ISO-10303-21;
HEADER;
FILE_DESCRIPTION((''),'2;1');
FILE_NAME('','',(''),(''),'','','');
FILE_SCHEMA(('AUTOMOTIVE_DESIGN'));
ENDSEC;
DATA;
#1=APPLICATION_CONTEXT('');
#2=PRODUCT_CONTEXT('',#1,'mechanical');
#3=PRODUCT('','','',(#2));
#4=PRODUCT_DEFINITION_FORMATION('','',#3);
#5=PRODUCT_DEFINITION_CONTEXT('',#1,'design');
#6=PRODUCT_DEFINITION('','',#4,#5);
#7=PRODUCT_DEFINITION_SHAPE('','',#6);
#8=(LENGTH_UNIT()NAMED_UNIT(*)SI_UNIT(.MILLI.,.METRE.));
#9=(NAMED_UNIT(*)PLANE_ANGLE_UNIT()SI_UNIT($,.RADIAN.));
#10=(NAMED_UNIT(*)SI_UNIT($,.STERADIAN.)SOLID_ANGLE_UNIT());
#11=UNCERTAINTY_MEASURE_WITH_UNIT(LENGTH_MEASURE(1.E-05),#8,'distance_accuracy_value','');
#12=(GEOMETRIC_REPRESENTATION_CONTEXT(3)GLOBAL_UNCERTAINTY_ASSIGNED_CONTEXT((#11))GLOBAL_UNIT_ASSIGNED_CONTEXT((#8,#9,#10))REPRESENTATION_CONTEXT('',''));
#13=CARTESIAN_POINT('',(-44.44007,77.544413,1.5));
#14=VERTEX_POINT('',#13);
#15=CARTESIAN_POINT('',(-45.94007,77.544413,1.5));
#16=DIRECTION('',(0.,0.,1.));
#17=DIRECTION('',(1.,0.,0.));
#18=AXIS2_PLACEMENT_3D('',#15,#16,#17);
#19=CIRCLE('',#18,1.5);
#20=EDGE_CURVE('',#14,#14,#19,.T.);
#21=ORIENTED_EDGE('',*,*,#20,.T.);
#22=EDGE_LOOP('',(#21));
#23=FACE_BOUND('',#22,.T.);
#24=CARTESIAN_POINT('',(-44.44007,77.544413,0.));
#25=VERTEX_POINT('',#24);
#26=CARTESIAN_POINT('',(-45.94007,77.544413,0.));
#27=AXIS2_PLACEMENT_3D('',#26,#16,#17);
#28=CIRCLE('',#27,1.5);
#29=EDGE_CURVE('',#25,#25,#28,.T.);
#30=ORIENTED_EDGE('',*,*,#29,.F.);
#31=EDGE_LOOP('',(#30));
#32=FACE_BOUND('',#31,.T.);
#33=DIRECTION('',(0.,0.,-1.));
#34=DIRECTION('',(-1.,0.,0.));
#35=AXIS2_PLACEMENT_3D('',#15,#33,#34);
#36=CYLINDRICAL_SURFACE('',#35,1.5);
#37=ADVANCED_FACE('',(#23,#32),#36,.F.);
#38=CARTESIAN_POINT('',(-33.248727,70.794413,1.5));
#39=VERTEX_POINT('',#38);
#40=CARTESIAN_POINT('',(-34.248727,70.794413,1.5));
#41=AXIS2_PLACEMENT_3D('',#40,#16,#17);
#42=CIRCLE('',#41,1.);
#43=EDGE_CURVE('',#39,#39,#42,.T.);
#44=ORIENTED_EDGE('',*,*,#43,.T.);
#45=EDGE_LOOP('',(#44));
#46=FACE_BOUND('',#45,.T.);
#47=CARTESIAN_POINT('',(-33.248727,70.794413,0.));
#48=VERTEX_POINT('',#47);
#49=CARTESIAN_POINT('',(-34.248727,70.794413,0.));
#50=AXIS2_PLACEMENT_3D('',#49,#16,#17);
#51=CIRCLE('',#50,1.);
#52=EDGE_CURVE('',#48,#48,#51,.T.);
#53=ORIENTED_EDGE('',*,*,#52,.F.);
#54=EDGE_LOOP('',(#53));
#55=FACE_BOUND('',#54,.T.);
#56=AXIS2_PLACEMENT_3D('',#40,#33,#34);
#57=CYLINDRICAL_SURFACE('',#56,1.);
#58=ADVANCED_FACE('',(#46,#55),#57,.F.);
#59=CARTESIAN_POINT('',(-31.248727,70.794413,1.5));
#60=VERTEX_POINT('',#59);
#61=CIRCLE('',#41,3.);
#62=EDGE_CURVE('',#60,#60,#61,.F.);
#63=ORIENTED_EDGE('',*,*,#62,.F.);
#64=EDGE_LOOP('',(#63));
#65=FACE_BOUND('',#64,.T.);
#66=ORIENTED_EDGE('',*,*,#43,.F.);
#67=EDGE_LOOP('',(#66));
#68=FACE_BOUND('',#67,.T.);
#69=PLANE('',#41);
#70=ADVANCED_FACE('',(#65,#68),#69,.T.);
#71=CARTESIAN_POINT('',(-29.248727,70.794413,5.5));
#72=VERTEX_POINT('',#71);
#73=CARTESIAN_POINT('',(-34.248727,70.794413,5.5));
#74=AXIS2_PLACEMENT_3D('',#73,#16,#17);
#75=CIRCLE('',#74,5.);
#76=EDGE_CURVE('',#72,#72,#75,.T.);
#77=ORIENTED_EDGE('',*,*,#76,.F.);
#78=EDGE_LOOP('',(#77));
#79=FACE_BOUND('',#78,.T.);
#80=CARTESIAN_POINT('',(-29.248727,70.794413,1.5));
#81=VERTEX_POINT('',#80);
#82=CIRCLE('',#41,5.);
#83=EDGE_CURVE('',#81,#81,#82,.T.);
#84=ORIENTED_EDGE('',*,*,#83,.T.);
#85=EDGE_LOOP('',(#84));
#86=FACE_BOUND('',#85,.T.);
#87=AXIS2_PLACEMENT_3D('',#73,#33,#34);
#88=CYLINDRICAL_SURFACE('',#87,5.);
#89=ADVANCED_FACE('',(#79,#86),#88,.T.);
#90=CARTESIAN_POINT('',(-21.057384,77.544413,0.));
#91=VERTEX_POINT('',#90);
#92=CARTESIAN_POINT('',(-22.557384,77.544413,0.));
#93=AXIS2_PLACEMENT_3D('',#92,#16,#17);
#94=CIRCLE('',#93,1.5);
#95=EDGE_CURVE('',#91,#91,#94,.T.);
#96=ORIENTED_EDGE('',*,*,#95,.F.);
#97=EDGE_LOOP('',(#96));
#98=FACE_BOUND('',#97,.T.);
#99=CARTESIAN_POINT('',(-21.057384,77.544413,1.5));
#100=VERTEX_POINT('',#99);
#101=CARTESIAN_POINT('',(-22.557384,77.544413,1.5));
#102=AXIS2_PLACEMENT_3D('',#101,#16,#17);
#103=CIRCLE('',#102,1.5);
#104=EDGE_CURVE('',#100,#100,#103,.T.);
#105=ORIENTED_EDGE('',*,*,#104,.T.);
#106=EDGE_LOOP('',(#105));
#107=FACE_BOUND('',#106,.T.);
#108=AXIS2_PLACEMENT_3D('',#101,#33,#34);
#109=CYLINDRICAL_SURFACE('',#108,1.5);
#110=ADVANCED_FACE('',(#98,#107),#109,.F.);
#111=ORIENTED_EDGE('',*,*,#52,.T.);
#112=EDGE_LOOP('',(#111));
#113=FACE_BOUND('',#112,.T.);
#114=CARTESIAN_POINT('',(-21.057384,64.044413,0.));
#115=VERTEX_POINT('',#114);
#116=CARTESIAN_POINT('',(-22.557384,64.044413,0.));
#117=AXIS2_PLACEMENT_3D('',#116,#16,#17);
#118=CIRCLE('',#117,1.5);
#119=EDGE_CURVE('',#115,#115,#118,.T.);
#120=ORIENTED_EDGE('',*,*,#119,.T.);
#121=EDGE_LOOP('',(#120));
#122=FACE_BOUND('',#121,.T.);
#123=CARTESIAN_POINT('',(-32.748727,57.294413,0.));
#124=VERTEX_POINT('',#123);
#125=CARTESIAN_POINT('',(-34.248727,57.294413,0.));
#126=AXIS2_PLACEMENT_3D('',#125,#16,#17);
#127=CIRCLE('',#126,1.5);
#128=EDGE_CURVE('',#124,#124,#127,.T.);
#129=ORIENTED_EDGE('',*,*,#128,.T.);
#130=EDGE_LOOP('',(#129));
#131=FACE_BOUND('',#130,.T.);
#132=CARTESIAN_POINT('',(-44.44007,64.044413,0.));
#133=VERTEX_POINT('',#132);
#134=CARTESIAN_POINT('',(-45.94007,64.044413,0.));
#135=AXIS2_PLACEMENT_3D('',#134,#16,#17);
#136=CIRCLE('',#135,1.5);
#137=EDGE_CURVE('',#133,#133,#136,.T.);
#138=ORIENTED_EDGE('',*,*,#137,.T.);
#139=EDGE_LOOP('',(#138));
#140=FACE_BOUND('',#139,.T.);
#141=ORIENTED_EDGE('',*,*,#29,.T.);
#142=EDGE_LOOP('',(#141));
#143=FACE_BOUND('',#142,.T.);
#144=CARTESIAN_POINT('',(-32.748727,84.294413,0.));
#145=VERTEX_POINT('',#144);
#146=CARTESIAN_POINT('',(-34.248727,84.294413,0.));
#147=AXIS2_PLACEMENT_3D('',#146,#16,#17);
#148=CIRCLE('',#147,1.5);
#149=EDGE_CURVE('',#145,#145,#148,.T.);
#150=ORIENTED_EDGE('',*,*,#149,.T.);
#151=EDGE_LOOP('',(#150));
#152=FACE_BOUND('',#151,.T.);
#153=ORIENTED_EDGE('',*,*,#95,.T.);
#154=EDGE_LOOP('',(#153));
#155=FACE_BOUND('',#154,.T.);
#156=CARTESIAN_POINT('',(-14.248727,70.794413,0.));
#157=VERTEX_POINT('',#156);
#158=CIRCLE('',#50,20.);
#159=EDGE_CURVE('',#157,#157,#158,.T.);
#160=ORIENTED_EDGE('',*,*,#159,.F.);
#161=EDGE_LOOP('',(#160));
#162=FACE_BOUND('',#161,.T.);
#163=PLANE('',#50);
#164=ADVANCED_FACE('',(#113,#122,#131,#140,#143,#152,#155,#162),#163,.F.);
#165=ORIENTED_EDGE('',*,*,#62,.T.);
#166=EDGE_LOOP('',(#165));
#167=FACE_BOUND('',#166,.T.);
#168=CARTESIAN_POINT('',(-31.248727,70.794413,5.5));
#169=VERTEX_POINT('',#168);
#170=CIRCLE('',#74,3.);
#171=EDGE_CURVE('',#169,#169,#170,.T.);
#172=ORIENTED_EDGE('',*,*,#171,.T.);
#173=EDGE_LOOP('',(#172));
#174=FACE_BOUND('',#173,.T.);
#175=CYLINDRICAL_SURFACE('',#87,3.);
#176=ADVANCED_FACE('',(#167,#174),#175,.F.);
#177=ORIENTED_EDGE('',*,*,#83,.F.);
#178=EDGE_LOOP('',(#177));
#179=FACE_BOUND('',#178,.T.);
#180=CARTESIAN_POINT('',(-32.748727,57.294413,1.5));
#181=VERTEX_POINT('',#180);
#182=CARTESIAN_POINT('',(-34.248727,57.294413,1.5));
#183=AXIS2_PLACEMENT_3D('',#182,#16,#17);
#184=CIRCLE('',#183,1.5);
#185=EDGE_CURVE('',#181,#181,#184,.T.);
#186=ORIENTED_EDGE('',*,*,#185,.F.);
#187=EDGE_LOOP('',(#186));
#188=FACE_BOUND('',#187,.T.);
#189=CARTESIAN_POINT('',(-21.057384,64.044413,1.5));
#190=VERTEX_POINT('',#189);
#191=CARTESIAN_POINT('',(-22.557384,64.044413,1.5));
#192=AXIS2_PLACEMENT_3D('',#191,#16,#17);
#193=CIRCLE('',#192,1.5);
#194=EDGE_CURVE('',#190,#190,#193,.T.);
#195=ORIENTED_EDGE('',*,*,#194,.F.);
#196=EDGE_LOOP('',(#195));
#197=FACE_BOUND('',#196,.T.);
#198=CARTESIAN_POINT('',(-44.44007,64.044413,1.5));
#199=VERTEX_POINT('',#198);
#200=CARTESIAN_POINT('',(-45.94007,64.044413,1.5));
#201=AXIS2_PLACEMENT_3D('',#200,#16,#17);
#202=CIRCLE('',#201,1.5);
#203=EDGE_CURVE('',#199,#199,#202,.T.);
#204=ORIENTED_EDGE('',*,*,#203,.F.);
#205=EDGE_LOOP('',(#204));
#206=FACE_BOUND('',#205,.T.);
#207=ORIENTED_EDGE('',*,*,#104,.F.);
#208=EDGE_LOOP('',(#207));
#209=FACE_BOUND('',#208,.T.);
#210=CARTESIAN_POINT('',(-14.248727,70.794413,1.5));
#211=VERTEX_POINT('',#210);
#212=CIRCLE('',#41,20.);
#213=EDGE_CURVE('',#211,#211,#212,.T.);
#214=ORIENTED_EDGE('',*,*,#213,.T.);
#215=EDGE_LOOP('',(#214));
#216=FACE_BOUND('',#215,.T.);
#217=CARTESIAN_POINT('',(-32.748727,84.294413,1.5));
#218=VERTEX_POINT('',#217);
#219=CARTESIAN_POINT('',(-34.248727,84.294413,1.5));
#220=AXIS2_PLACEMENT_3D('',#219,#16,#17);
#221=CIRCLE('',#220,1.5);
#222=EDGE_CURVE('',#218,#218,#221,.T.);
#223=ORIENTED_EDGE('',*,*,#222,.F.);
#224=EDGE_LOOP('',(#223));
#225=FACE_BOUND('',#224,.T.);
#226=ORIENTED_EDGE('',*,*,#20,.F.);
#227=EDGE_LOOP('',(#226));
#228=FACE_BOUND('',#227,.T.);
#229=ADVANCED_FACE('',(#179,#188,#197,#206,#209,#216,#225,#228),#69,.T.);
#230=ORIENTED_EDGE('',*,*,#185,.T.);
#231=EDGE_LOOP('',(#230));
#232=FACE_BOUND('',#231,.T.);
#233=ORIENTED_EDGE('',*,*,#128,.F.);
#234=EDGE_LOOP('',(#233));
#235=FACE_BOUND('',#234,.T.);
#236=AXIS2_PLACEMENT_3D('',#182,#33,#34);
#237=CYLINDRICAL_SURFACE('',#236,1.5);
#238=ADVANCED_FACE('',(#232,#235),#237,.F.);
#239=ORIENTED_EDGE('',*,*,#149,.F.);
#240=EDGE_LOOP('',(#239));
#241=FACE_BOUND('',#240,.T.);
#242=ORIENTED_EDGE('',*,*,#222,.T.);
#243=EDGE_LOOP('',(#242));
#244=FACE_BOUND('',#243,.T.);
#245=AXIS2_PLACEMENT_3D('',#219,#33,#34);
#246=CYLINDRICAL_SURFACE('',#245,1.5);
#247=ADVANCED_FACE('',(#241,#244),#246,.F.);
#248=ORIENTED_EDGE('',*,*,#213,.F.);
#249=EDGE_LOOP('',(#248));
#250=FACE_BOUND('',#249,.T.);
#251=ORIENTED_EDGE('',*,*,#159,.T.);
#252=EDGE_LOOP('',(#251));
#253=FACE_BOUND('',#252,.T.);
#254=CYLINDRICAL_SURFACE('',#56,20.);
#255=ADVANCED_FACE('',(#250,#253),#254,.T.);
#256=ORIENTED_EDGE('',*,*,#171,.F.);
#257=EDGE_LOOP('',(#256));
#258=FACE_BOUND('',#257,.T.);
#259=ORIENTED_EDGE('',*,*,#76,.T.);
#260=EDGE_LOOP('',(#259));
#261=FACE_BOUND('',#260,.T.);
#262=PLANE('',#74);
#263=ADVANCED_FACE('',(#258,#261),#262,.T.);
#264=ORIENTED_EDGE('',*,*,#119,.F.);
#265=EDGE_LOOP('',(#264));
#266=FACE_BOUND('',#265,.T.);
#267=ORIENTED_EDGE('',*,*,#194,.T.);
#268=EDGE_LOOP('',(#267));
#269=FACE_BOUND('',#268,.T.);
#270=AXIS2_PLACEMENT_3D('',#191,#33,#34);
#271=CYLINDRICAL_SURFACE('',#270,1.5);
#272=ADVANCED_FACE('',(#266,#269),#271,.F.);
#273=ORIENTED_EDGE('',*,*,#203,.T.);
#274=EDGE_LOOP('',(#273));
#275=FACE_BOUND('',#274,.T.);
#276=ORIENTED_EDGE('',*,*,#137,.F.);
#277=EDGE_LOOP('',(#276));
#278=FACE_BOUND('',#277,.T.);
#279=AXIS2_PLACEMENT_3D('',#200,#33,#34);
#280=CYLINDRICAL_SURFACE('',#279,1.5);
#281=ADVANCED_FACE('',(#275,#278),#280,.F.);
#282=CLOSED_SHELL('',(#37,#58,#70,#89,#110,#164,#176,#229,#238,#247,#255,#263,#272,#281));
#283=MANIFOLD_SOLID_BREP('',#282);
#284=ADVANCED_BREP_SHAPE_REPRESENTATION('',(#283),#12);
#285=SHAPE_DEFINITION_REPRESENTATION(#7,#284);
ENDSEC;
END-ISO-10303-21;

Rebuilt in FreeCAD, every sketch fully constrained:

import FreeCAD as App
import Part
import Sketcher
from FreeCAD import Vector

doc = App.newDocument("Part")
params = doc.addObject("Spreadsheet::Sheet", "Params")
for row, (alias, value) in enumerate([
    ("sketch1_diameter", "40 mm"),
    ("sketch1_diameter2", "3 mm"),
    ("sketch1_diameter3", "2 mm"),
    ("pad1_length", "1.5 mm"),
    ("sketch2_diameter", "10 mm"),
    ("sketch2_diameter2", "6 mm"),
    ("pad2_length", "4 mm"),
], start=1):
    params.set(f"A{row}", alias)
    params.set(f"B{row}", "=" + value)
    params.setAlias(f"B{row}", alias)

body = doc.addObject("PartDesign::Body", "Body")

# Sketch on XY plane
sketch1 = body.newObject("Sketcher::SketchObject", "Sketch")
sketch1.AttachmentSupport = (doc.getObject("XY_Plane"), [""])
sketch1.MapMode = "FlatFace"
sketch1.addGeometry([
    Part.Circle(Vector(-34.2, 70.8, 0), Vector(0, 0, 1), 20),  # 0
    Part.Circle(Vector(-34.2, 57.3, 0), Vector(0, 0, 1), 1.5),  # 1
    Part.Circle(Vector(-45.9, 64, 0), Vector(0, 0, 1), 1.5),  # 2
    Part.Circle(Vector(-22.6, 64, 0), Vector(0, 0, 1), 1.5),  # 3
    Part.Circle(Vector(-45.9, 77.5, 0), Vector(0, 0, 1), 1.5),  # 4
    Part.Circle(Vector(-34.2, 70.8, 0), Vector(0, 0, 1), 1),  # 5
    Part.Circle(Vector(-34.2, 84.3, 0), Vector(0, 0, 1), 1.5),  # 6
    Part.Circle(Vector(-22.6, 77.5, 0), Vector(0, 0, 1), 1.5),  # 7
], False)
sketch1.addConstraint([
    Sketcher.Constraint("Coincident", 5, 3, 0, 3),
    Sketcher.Constraint("Equal", 1, 2),
    Sketcher.Constraint("Equal", 2, 3),
    Sketcher.Constraint("Equal", 3, 4),
    Sketcher.Constraint("Equal", 4, 6),
    Sketcher.Constraint("Equal", 6, 7),
    Sketcher.Constraint("Horizontal", 2, 3, 3, 3),
    Sketcher.Constraint("Horizontal", 4, 3, 7, 3),
    Sketcher.Constraint("Vertical", 0, 3, 1, 3),
    Sketcher.Constraint("Vertical", 2, 3, 4, 3),
    Sketcher.Constraint("Vertical", 5, 3, 6, 3),
    Sketcher.Constraint("Vertical", 3, 3, 7, 3),
    Sketcher.Constraint("Diameter", 0, 40.0),
    Sketcher.Constraint("Diameter", 1, 3.0),
    Sketcher.Constraint("Diameter", 5, 2.0),
    Sketcher.Constraint("DistanceY", 1, 3, 0, 3, 13.5),
    Sketcher.Constraint("DistanceY", 2, 3, 4, 3, 13.5),
    Sketcher.Constraint("DistanceY", 0, 3, 6, 3, 13.5),
    Sketcher.Constraint("DistanceY", 2, 3, 0, 3, 6.75),
    Sketcher.Constraint("DistanceX", 2, 3, -1, 1, 45.94007),
    Sketcher.Constraint("DistanceX", 0, 3, -1, 1, 34.248727),
    Sketcher.Constraint("DistanceY", -1, 1, 0, 3, 70.794413),
    Sketcher.Constraint("DistanceX", 3, 3, -1, 1, 22.557384),
])
sketch1.setExpression("Constraints[12]", "Params.sketch1_diameter")
sketch1.setExpression("Constraints[13]", "Params.sketch1_diameter2")
sketch1.setExpression("Constraints[14]", "Params.sketch1_diameter3")
pad1 = body.newObject("PartDesign::Pad", "Pad")
pad1.Profile = sketch1
pad1.setExpression("Length", "Params.pad1_length")

# Sketch on XY plane
sketch2 = body.newObject("Sketcher::SketchObject", "Sketch001")
sketch2.AttachmentSupport = (doc.getObject("XY_Plane"), [""])
sketch2.MapMode = "FlatFace"
sketch2.AttachmentOffset = App.Placement(Vector(0, 0, 1.5), App.Rotation())
sketch2.addGeometry([
    Part.Circle(Vector(-34.2, 70.8, 0), Vector(0, 0, 1), 5),
    Part.Circle(Vector(-34.2, 70.8, 0), Vector(0, 0, 1), 3),
], False)
sketch2.addConstraint([
    Sketcher.Constraint("Coincident", 1, 3, 0, 3),
    Sketcher.Constraint("Diameter", 0, 10.0),
    Sketcher.Constraint("Diameter", 1, 6.0),
    Sketcher.Constraint("DistanceX", 0, 3, -1, 1, 34.248727),
    Sketcher.Constraint("DistanceY", -1, 1, 0, 3, 70.794413),
])
sketch2.setExpression("Constraints[1]", "Params.sketch2_diameter")
sketch2.setExpression("Constraints[2]", "Params.sketch2_diameter2")
pad2 = body.newObject("PartDesign::Pad", "Pad001")
pad2.Profile = sketch2
pad2.setExpression("Length", "Params.pad2_length")

doc.recompute()
